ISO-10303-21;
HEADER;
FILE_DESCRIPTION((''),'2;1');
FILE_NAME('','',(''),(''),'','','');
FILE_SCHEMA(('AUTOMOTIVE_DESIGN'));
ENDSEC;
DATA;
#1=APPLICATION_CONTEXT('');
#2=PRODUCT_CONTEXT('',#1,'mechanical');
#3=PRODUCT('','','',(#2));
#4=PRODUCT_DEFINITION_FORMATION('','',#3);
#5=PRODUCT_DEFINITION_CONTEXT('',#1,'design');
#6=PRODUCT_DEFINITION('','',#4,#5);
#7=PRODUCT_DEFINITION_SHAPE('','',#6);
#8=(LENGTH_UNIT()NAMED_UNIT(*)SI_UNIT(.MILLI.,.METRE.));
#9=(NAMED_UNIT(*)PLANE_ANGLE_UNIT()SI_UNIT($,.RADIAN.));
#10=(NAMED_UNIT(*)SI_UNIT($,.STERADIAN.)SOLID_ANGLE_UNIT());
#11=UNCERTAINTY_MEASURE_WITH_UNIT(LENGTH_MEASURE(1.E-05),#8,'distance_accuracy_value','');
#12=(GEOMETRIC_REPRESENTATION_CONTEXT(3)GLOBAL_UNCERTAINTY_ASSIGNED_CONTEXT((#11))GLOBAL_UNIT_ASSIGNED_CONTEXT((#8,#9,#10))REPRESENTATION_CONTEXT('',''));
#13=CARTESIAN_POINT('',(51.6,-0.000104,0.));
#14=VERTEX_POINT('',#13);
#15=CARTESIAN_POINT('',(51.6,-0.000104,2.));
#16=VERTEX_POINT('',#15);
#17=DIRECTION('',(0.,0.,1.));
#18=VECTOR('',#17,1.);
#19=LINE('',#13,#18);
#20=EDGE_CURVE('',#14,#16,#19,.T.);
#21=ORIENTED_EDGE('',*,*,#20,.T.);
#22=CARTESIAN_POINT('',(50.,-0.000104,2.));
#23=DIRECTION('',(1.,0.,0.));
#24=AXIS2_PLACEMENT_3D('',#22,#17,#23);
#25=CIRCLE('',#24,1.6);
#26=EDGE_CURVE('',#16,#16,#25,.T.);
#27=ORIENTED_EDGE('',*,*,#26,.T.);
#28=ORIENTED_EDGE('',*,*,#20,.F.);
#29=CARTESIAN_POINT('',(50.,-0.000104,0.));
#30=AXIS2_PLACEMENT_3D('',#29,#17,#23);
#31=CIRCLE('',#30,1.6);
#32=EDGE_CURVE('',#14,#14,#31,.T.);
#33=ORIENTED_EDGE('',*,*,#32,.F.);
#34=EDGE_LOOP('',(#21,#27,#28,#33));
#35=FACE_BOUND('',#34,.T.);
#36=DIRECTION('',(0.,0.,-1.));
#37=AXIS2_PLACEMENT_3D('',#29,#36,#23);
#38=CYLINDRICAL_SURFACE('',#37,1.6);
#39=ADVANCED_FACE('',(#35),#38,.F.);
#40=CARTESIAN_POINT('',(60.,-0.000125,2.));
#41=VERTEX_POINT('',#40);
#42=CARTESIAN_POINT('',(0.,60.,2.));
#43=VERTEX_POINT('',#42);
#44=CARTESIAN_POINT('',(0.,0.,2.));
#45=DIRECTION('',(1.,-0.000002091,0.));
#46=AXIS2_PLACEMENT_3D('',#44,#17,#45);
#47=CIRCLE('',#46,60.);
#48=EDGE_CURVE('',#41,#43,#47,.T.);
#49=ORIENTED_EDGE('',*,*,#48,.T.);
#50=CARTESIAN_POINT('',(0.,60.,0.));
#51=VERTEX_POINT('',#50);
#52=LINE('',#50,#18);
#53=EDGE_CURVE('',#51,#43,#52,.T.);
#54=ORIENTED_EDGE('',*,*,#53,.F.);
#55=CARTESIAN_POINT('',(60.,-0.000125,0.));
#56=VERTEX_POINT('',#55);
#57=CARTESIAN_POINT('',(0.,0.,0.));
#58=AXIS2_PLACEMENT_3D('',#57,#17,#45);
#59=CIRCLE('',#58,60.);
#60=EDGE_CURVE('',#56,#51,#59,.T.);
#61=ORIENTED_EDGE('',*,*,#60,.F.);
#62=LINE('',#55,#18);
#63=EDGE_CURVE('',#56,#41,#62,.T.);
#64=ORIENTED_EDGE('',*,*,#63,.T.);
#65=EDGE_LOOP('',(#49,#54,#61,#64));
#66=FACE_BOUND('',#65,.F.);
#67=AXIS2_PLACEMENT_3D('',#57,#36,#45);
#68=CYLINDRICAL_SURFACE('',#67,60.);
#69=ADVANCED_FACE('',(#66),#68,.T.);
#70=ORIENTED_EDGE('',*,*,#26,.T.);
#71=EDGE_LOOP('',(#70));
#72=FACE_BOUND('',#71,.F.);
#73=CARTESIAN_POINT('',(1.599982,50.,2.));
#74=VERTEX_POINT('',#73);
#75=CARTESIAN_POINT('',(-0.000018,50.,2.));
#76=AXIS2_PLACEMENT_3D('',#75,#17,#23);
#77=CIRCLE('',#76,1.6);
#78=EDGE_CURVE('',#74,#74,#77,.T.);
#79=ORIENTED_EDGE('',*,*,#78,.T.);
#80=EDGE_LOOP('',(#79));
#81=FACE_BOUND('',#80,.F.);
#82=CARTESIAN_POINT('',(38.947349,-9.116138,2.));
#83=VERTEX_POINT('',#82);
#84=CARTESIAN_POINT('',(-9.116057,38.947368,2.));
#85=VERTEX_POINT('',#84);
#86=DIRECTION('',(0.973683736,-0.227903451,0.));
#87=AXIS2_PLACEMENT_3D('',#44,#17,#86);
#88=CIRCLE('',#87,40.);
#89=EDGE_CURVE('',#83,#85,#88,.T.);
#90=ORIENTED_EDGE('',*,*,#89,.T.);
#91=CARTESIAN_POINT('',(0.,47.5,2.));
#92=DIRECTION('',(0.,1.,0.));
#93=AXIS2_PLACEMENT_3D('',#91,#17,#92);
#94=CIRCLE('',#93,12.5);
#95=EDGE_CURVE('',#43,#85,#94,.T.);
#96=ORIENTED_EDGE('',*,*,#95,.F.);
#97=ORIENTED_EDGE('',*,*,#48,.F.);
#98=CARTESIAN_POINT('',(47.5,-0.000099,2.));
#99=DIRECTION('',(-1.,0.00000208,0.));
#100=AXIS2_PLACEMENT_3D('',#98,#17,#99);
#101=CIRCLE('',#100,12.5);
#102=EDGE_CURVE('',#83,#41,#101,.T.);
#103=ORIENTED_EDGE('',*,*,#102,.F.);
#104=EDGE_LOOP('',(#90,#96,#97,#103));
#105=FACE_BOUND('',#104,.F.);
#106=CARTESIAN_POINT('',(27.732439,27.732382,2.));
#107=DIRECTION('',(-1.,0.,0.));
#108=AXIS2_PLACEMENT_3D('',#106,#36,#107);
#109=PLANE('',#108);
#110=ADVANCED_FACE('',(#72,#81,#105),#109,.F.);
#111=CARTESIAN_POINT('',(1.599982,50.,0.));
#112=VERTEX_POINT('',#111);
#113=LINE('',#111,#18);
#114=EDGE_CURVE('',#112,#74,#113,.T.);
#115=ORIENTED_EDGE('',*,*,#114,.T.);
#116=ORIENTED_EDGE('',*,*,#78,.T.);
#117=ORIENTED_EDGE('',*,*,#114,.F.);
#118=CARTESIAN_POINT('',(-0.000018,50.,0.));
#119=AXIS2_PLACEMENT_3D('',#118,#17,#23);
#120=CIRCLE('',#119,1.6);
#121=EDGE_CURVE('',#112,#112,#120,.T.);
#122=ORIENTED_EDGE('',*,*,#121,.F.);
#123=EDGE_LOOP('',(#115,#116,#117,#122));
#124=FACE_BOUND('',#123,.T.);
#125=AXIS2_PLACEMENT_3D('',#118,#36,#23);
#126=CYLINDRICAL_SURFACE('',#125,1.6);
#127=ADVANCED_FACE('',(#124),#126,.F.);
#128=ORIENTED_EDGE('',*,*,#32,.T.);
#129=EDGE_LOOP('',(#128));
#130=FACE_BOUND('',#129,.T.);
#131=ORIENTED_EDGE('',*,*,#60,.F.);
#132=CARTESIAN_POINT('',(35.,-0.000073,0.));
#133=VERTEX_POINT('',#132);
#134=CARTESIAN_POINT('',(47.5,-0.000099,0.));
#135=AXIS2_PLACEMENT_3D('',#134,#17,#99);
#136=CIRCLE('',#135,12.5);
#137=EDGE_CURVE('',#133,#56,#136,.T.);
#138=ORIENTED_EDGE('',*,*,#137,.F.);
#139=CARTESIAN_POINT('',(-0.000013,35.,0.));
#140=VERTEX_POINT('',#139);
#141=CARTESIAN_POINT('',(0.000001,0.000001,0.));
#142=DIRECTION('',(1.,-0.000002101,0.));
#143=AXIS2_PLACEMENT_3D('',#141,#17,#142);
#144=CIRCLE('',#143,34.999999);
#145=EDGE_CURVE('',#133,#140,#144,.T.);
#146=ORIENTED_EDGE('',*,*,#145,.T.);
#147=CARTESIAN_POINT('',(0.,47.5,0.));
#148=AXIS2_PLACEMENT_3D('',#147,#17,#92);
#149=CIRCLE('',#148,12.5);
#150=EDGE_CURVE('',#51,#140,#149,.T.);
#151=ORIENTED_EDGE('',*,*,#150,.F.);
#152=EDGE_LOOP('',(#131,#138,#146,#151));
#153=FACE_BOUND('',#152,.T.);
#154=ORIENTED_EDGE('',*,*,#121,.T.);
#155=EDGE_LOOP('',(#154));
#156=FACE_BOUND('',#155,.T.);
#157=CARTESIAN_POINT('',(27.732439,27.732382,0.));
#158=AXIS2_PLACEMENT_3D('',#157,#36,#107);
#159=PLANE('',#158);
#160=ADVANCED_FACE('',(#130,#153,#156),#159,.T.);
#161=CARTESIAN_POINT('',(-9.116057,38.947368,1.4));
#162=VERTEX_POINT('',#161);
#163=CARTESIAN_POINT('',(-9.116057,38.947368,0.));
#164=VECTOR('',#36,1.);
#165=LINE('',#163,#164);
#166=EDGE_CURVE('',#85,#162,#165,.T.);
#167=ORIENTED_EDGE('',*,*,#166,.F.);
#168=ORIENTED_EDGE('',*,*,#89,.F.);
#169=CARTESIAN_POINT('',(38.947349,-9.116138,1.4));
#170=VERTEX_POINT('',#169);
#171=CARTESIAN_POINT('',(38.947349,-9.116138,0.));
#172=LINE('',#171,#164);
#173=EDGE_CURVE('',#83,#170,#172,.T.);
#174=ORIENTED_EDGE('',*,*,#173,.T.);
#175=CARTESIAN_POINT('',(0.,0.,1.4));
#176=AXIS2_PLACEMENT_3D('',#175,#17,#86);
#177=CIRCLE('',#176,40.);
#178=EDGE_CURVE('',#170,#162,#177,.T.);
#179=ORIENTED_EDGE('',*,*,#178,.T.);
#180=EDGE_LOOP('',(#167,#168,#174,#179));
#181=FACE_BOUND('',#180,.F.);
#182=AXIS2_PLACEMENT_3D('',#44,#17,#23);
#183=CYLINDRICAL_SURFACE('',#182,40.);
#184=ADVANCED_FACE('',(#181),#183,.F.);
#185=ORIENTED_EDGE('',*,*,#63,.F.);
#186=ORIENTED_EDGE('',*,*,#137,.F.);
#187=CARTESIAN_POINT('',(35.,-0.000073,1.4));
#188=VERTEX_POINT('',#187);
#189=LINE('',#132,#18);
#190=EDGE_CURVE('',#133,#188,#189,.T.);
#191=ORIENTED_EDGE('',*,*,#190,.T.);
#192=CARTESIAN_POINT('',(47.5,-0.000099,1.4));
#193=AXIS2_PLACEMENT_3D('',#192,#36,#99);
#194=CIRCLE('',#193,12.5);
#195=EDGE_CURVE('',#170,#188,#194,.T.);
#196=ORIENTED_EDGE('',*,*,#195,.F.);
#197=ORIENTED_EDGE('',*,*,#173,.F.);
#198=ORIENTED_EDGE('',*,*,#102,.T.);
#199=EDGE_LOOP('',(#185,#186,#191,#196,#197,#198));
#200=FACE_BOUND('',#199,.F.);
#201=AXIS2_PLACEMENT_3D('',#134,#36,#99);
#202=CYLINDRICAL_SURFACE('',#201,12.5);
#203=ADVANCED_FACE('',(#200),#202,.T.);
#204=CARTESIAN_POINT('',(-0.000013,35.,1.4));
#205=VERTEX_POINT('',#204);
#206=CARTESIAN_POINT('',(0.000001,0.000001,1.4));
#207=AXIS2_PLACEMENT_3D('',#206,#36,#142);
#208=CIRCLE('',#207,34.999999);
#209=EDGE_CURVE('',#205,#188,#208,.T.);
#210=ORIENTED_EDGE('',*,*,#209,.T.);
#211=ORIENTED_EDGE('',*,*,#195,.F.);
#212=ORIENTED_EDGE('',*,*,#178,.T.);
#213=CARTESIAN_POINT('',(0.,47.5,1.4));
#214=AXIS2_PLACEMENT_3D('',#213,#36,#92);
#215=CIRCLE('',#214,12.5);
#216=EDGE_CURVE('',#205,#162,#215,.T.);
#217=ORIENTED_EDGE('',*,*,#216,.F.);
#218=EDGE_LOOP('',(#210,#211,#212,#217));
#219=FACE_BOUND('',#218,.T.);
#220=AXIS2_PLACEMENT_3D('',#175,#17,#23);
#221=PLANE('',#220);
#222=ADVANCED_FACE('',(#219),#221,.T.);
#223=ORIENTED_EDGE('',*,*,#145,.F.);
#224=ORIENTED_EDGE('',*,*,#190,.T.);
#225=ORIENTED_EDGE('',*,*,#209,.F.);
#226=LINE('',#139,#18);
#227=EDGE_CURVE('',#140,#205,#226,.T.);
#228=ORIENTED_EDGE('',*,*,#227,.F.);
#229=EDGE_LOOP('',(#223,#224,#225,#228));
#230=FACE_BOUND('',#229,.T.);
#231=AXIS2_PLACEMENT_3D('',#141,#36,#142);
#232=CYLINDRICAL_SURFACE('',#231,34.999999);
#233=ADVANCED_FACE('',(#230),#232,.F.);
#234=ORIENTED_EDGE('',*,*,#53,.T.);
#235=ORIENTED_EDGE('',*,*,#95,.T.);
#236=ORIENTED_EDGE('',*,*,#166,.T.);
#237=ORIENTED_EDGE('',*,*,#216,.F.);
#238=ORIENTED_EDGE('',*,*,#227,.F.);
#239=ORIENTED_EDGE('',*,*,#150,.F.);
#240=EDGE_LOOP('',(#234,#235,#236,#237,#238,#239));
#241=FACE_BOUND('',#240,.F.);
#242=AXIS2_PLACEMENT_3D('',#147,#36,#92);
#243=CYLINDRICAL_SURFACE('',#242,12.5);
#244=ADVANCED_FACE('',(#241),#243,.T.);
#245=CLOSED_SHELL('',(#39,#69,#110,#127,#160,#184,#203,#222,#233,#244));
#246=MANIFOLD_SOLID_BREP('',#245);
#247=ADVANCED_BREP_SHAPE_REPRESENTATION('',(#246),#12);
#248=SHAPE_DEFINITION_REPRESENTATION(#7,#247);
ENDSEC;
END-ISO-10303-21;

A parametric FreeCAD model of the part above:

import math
import FreeCAD as App
import Part
import Sketcher

V = App.Vector

doc = App.newDocument("Part")
body = doc.addObject("PartDesign::Body", "Body")

# Sketch on XY plane
sketch1 = body.newObject("Sketcher::SketchObject", "Sketch")
sketch1.AttachmentSupport = (doc.getObject("XY_Plane"), [""])
sketch1.MapMode = "FlatFace"
sketch1.addGeometry([
    Part.ArcOfCircle(Part.Circle(V(0.000001, 0.000001, 0), V(0, 0, 1), 34.999999), math.radians(-0.00012), math.radians(90.000022)),  # 0
    Part.ArcOfCircle(Part.Circle(V(47.5, -0.000099, 0), V(0, 0, 1), 12.5), math.radians(179.999881), math.radians(359.999881)),  # 1
    Part.ArcOfCircle(Part.Circle(V(0, 0, 0), V(0, 0, 1), 60), math.radians(-0.00012), math.radians(90)),  # 2
    Part.ArcOfCircle(Part.Circle(V(0, 47.5, 0), V(0, 0, 1), 12.5), math.radians(90), math.radians(269.99994)),  # 3
    Part.Circle(V(50, -0.000104, 0), V(0, 0, 1), 1.6),  # 4
    Part.Circle(V(-0.000018, 50, 0), V(0, 0, 1), 1.6),  # 5
], False)
sketch1.addConstraint([
    Sketcher.Constraint("Tangent", 0, 1, 1, 1),
    Sketcher.Constraint("Tangent", 1, 2, 2, 1),
    Sketcher.Constraint("Tangent", 2, 2, 3, 1),
    Sketcher.Constraint("Tangent", 3, 2, 0, 2),
    Sketcher.Constraint("Coincident", 0, 3, -1, 1),
    Sketcher.Constraint("Coincident", 2, 3, -1, 1),
    Sketcher.Constraint("Equal", 4, 5),
    Sketcher.Constraint("PointOnObject", 3, 3, -2),
    Sketcher.Constraint("Radius", 0, 34.999999),
    Sketcher.Constraint("Radius", 2, 60.0),
    Sketcher.Constraint("Diameter", 4, 3.2),
    Sketcher.Constraint("DistanceX", -1, 1, 4, 3, 50.0),
    Sketcher.Constraint("DistanceY", -1, 1, 5, 3, 50.0),
    Sketcher.Constraint("DistanceY", 1, 3, 3, 3, 47.500099),
    Sketcher.Constraint("DistanceY", 4, 3, -1, 1, 0.000104),
    Sketcher.Constraint("DistanceX", 5, 3, 1, 3, 47.500018),
])
pad1 = body.newObject("PartDesign::Pad", "Pad")
pad1.Profile = sketch1
pad1.Length = 2

# Sketch on XY plane
sketch2 = body.newObject("Sketcher::SketchObject", "Sketch001")
sketch2.AttachmentSupport = (doc.getObject("XY_Plane"), [""])
sketch2.MapMode = "FlatFace"
sketch2.AttachmentOffset = App.Placement(V(0, 0, 2), App.Rotation())
sketch2.addGeometry(Part.Circle(V(0, 0, 0), V(0, 0, 1), 40), False)
sketch2.addConstraint([
    Sketcher.Constraint("Coincident", 0, 3, -1, 1),
    Sketcher.Constraint("Diameter", 0, 80.0),
])
pocket1 = body.newObject("PartDesign::Pocket", "Pocket")
pocket1.Profile = sketch2
pocket1.Length = 0.6

doc.recompute()
